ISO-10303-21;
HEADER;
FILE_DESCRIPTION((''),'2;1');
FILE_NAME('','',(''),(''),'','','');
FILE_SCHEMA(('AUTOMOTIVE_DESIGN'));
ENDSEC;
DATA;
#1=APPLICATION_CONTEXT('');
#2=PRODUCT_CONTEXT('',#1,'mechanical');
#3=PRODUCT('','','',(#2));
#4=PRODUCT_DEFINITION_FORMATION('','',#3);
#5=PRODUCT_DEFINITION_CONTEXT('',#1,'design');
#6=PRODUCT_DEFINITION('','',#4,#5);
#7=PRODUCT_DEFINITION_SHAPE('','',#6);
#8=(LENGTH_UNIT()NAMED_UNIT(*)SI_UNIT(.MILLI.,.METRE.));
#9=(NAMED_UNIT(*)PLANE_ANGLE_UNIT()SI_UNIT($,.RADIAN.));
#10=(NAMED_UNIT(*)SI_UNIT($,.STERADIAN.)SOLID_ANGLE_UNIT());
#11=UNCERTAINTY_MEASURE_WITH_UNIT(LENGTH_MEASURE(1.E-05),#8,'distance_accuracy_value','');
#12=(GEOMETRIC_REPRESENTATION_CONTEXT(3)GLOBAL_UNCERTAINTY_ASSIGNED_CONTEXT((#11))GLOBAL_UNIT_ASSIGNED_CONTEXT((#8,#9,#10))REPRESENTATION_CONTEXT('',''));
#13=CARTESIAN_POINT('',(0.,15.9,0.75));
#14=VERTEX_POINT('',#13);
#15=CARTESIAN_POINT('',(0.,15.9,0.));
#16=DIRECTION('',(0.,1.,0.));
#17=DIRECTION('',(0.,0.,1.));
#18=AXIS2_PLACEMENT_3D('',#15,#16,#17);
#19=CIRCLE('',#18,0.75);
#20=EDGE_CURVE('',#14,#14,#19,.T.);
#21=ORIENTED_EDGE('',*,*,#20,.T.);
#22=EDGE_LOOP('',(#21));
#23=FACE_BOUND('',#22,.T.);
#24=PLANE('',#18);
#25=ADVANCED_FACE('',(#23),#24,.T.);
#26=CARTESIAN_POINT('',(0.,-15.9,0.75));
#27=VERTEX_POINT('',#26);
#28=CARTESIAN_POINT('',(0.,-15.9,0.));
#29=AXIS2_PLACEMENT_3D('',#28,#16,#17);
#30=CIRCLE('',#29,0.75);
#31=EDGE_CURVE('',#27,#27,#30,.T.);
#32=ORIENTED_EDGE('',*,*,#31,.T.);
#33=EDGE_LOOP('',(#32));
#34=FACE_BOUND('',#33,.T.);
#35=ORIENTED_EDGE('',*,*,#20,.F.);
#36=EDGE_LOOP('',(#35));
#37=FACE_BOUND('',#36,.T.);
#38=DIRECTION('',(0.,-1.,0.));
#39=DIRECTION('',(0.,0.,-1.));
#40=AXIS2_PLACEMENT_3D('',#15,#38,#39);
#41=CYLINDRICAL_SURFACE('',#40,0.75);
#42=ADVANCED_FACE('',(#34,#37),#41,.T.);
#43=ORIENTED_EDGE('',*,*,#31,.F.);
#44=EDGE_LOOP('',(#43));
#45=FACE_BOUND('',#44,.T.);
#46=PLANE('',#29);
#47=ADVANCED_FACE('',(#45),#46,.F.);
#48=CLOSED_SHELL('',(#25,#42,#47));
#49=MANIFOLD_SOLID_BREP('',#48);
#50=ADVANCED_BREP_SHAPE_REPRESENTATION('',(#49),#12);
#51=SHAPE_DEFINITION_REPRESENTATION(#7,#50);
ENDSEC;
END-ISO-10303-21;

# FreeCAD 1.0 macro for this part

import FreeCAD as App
import Part
import Sketcher
Q = App.Units.Quantity

doc = App.newDocument("Part")
body = doc.addObject("PartDesign::Body", "Body")

sketch1 = doc.addObject("Sketcher::SketchObject", "Sketch")
body.addObject(sketch1)
sketch1.AttachmentSupport = (doc.XZ_Plane, [""])
sketch1.MapMode = "FlatFace"
sketch1.addGeometry(Part.Circle(App.Vector(0, 0, 0), App.Vector(0, 0, 1), 0.75), False)
sketch1.addConstraint([
    Sketcher.Constraint("Coincident", 0, 3, -1, 1),
    Sketcher.Constraint("Diameter", 0, Q("1.5 mm")),
])
pad1 = doc.addObject("PartDesign::Pad", "Pad")
body.addObject(pad1)
pad1.Profile = sketch1
pad1.Length = 31.8
pad1.Midplane = True

doc.recompute()
